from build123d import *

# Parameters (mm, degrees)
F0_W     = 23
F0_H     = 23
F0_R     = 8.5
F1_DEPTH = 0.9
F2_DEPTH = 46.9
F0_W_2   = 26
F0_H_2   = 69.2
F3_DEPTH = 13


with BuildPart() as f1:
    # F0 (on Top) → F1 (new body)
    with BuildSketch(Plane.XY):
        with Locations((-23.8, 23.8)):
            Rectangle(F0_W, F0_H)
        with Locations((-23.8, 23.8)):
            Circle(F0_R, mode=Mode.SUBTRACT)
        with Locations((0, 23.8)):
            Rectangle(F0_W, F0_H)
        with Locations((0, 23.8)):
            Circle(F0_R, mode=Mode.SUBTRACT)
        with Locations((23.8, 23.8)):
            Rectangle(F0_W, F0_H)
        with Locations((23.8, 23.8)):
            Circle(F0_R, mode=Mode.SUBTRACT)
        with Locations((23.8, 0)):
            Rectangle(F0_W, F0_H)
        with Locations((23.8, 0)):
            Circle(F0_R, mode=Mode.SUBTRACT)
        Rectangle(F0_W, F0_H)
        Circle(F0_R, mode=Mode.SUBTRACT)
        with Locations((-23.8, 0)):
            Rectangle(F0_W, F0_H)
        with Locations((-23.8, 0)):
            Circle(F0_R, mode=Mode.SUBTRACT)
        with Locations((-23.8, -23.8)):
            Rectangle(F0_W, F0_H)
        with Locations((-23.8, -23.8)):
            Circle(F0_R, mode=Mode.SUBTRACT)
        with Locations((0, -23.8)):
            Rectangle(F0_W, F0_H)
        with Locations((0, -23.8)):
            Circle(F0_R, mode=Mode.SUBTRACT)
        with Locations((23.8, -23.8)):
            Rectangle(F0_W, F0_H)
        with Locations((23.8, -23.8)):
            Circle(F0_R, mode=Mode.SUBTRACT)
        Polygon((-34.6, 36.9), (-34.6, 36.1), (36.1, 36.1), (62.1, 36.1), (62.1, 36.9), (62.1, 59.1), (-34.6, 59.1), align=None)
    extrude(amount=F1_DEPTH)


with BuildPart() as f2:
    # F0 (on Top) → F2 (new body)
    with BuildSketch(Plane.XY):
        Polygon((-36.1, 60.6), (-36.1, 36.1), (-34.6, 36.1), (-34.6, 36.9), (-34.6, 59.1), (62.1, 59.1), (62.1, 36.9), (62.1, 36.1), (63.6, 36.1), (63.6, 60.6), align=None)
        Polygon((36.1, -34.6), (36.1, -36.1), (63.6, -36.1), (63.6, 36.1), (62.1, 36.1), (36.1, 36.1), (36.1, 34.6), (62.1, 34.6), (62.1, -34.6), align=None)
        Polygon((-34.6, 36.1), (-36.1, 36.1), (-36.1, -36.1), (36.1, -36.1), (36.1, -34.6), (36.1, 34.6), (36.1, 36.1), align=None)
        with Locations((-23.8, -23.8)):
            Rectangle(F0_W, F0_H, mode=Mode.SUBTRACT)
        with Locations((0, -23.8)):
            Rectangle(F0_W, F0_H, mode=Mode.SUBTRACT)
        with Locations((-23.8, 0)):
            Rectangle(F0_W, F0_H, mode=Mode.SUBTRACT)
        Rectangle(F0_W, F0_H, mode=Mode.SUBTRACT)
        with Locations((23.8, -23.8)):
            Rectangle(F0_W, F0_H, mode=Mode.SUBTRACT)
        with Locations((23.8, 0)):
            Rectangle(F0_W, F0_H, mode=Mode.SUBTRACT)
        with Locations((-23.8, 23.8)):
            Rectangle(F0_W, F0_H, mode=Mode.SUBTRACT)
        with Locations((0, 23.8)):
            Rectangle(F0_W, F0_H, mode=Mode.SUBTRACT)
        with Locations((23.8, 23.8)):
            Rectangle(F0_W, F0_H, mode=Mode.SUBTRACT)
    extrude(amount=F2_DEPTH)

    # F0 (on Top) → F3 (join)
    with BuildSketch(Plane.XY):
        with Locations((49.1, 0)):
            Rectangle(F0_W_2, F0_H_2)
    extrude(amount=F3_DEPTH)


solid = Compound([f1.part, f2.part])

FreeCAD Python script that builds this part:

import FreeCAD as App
import Part
import Sketcher
Q = App.Units.Quantity


def add_polygon(sketch, points):
    """Adds a closed chain of lines whose ends are joined by coincident constraints."""
    first, n = sketch.GeometryCount, len(points)
    for a, b in zip(points, points[1:] + points[:1]):
        sketch.addGeometry(Part.LineSegment(App.Vector(*a, 0), App.Vector(*b, 0)), False)
    for i in range(n):
        sketch.addConstraint(Sketcher.Constraint("Coincident", first + i, 2, first + (i + 1) % n, 1))

doc = App.newDocument("Part")
params = doc.addObject("Spreadsheet::Sheet", "Params")
for row, (alias, value) in enumerate([
    ("sketch1_diameter", "17 mm"),
    ("sketch1_width", "23 mm"),
    ("sketch1_width2", "96.7 mm"),
    ("pad1_length", "0.9 mm"),
    ("sketch2_width", "23 mm"),
    ("sketch2_width2", "26 mm"),
    ("sketch2_width3", "99.7 mm"),
    ("sketch2_width4", "96.7 mm"),
    ("sketch2_height", "69.2 mm"),
    ("pad2_length", "46.9 mm"),
    ("sketch3_width", "26 mm"),
    ("sketch3_height", "69.2 mm"),
    ("pad3_length", "13 mm"),
], start=1):
    params.set(f"A{row}", alias)
    params.set(f"B{row}", "=" + value)
    params.setAlias(f"B{row}", alias)

body = doc.addObject("PartDesign::Body", "Body")
body.AllowCompound = True

sketch1 = doc.addObject("Sketcher::SketchObject", "Sketch")
body.addObject(sketch1)
sketch1.AttachmentSupport = (doc.XY_Plane, [""])
sketch1.MapMode = "FlatFace"
add_polygon(sketch1, [(-35.3, 35.3), (-35.3, 12.3), (-12.3, 12.3), (-12.3, 35.3)])
sketch1.addGeometry(Part.Circle(App.Vector(-23.8, 23.8, 0), App.Vector(0, 0, 1), 8.5), False)
add_polygon(sketch1, [(-11.5, 35.3), (-11.5, 12.3), (11.5, 12.3), (11.5, 35.3)])
sketch1.addGeometry(Part.Circle(App.Vector(0, 23.8, 0), App.Vector(0, 0, 1), 8.5), False)
add_polygon(sketch1, [(12.3, 35.3), (12.3, 12.3), (35.3, 12.3), (35.3, 35.3)])
sketch1.addGeometry(Part.Circle(App.Vector(23.8, 23.8, 0), App.Vector(0, 0, 1), 8.5), False)
add_polygon(sketch1, [(12.3, 11.5), (12.3, -11.5), (35.3, -11.5), (35.3, 11.5)])
sketch1.addGeometry(Part.Circle(App.Vector(23.8, 0, 0), App.Vector(0, 0, 1), 8.5), False)
add_polygon(sketch1, [(-11.5, 11.5), (-11.5, -11.5), (11.5, -11.5), (11.5, 11.5)])
sketch1.addGeometry(Part.Circle(App.Vector(0, 0, 0), App.Vector(0, 0, 1), 8.5), False)
add_polygon(sketch1, [(-35.3, 11.5), (-35.3, -11.5), (-12.3, -11.5), (-12.3, 11.5)])
sketch1.addGeometry(Part.Circle(App.Vector(-23.8, 0, 0), App.Vector(0, 0, 1), 8.5), False)
add_polygon(sketch1, [(-35.3, -12.3), (-35.3, -35.3), (-12.3, -35.3), (-12.3, -12.3)])
sketch1.addGeometry(Part.Circle(App.Vector(-23.8, -23.8, 0), App.Vector(0, 0, 1), 8.5), False)
add_polygon(sketch1, [(-11.5, -12.3), (-11.5, -35.3), (11.5, -35.3), (11.5, -12.3)])
sketch1.addGeometry(Part.Circle(App.Vector(0, -23.8, 0), App.Vector(0, 0, 1), 8.5), False)
add_polygon(sketch1, [(12.3, -12.3), (12.3, -35.3), (35.3, -35.3), (35.3, -12.3)])
sketch1.addGeometry(Part.Circle(App.Vector(23.8, -23.8, 0), App.Vector(0, 0, 1), 8.5), False)
add_polygon(sketch1, [(-34.6, 36.1), (62.1, 36.1), (62.1, 59.1), (-34.6, 59.1)])
sketch1.addConstraint([
    Sketcher.Constraint("Vertical", 0),
    Sketcher.Constraint("Horizontal", 1),
    Sketcher.Constraint("Vertical", 2),
    Sketcher.Constraint("Horizontal", 3),
    Sketcher.Constraint("Vertical", 5),
    Sketcher.Constraint("Horizontal", 6),
    Sketcher.Constraint("Vertical", 7),
    Sketcher.Constraint("Horizontal", 8),
    Sketcher.Constraint("Vertical", 10),
    Sketcher.Constraint("Horizontal", 11),
    Sketcher.Constraint("Vertical", 12),
    Sketcher.Constraint("Horizontal", 13),
    Sketcher.Constraint("Vertical", 15),
    Sketcher.Constraint("Horizontal", 16),
    Sketcher.Constraint("Vertical", 17),
    Sketcher.Constraint("Horizontal", 18),
    Sketcher.Constraint("Vertical", 20),
    Sketcher.Constraint("Horizontal", 21),
    Sketcher.Constraint("Vertical", 22),
    Sketcher.Constraint("Horizontal", 23),
    Sketcher.Constraint("Vertical", 25),
    Sketcher.Constraint("Horizontal", 26),
    Sketcher.Constraint("Vertical", 27),
    Sketcher.Constraint("Horizontal", 28),
    Sketcher.Constraint("Vertical", 30),
    Sketcher.Constraint("Horizontal", 31),
    Sketcher.Constraint("Vertical", 32),
    Sketcher.Constraint("Horizontal", 33),
    Sketcher.Constraint("Vertical", 35),
    Sketcher.Constraint("Horizontal", 36),
    Sketcher.Constraint("Vertical", 37),
    Sketcher.Constraint("Horizontal", 38),
    Sketcher.Constraint("Vertical", 40),
    Sketcher.Constraint("Horizontal", 41),
    Sketcher.Constraint("Vertical", 42),
    Sketcher.Constraint("Horizontal", 43),
    Sketcher.Constraint("Horizontal", 45),
    Sketcher.Constraint("Vertical", 46),
    Sketcher.Constraint("Horizontal", 47),
    Sketcher.Constraint("Vertical", 48),
    Sketcher.Constraint("Coincident", 24, 3, -1, 1),
    Sketcher.Constraint("Equal", 4, 9),
    Sketcher.Constraint("Equal", 9, 14),
    Sketcher.Constraint("Equal", 14, 19),
    Sketcher.Constraint("Equal", 19, 24),
    Sketcher.Constraint("Equal", 24, 29),
    Sketcher.Constraint("Equal", 29, 34),
    Sketcher.Constraint("Equal", 34, 39),
    Sketcher.Constraint("Equal", 39, 44),
    Sketcher.Constraint("Symmetric", 19, 3, 29, 3, -1, 1),
    Sketcher.Constraint("Symmetric", 14, 3, 34, 3, -1, 1),
    Sketcher.Constraint("Symmetric", 9, 3, 39, 3, -1, 1),
    Sketcher.Constraint("Symmetric", 4, 3, 44, 3, -1, 1),
    Sketcher.Constraint("Symmetric", 20, 2, 22, 2, -1, 1),
    Sketcher.Constraint("Symmetric", 17, 2, 25, 2, -1, 1),
    Sketcher.Constraint("Symmetric", 15, 2, 27, 2, -1, 1),
    Sketcher.Constraint("Symmetric", 12, 2, 30, 2, -1, 1),
    Sketcher.Constraint("Symmetric", 10, 2, 32, 2, -1, 1),
    Sketcher.Constraint("Symmetric", 7, 2, 35, 2, -1, 1),
    Sketcher.Constraint("Symmetric", 5, 2, 37, 2, -1, 1),
    Sketcher.Constraint("Symmetric", 2, 2, 40, 2, -1, 1),
    Sketcher.Constraint("Symmetric", 0, 2, 42, 2, -1, 1),
    Sketcher.Constraint("Symmetric", 4, 3, 14, 3, -2),
    Sketcher.Constraint("Symmetric", 1, 2, 10, 2, -2),
    Sketcher.Constraint("Symmetric", 3, 2, 12, 2, -2),
    Sketcher.Constraint("PointOnObject", 9, 3, -2),
    Sketcher.Constraint("PointOnObject", 19, 3, -1),
    Sketcher.Constraint("Horizontal", 4, 3, 9, 3),
    Sketcher.Constraint("Horizontal", 1, 2, 5, 2),
    Sketcher.Constraint("Horizontal", 3, 2, 7, 2),
    Sketcher.Constraint("Horizontal", 16, 2, 20, 2),
    Sketcher.Constraint("Horizontal", 18, 2, 22, 2),
    Sketcher.Constraint("Vertical", 14, 3, 19, 3),
    Sketcher.Constraint("Vertical", 13, 2, 15, 2),
    Sketcher.Constraint("Vertical", 12, 2, 16, 2),
    Sketcher.Constraint("Vertical", 8, 2, 20, 2),
    Sketcher.Constraint("Vertical", 7, 2, 21, 2),
    Sketcher.Constraint("Equal", 3, 6),
    Sketcher.Constraint("Equal", 43, 0),
    Sketcher.Constraint("Equal", 12, 15),
    Sketcher.Constraint("Equal", 42, 46),
    Sketcher.Constraint("Diameter", 4, Q("17 mm")),
    Sketcher.Constraint("DistanceX", 1, 1, 1, 2, Q("23 mm")),
    Sketcher.Constraint("DistanceX", 45, 1, 45, 2, Q("96.7 mm")),
    Sketcher.Constraint("DistanceX", 4, 3, -1, 1, Q("23.8 mm")),
    Sketcher.Constraint("DistanceY", -1, 1, 4, 3, Q("23.8 mm")),
    Sketcher.Constraint("DistanceX", 0, 2, -1, 1, Q("35.3 mm")),
    Sketcher.Constraint("DistanceY", -1, 1, 0, 2, Q("12.3 mm")),
    Sketcher.Constraint("DistanceX", -1, 1, 45, 2, Q("62.1 mm")),
    Sketcher.Constraint("DistanceY", -1, 1, 45, 2, Q("36.1 mm")),
])
sketch1.setExpression("Constraints[121]", "Params.sketch1_diameter")
sketch1.setExpression("Constraints[122]", "Params.sketch1_width")
sketch1.setExpression("Constraints[123]", "Params.sketch1_width2")
pad1 = doc.addObject("PartDesign::Pad", "Pad")
body.addObject(pad1)
pad1.Profile = sketch1
pad1.setExpression("Length", "Params.pad1_length")
body2 = doc.addObject("PartDesign::Body", "Body001")

sketch2 = doc.addObject("Sketcher::SketchObject", "Sketch001")
body2.addObject(sketch2)
sketch2.AttachmentSupport = (doc.getObject("XY_Plane001"), [""])
sketch2.MapMode = "FlatFace"
add_polygon(sketch2, [(-36.1, 60.6), (-36.1, -36.1), (63.6, -36.1), (63.6, 60.6)])
add_polygon(sketch2, [(-12.3, -35.3), (-35.3, -35.3), (-35.3, -12.3), (-12.3, -12.3)])
add_polygon(sketch2, [(11.5, -35.3), (-11.5, -35.3), (-11.5, -12.3), (11.5, -12.3)])
add_polygon(sketch2, [(-12.3, -11.5), (-35.3, -11.5), (-35.3, 11.5), (-12.3, 11.5)])
add_polygon(sketch2, [(11.5, -11.5), (-11.5, -11.5), (-11.5, 11.5), (11.5, 11.5)])
add_polygon(sketch2, [(35.3, -35.3), (12.3, -35.3), (12.3, -12.3), (35.3, -12.3)])
add_polygon(sketch2, [(35.3, -11.5), (12.3, -11.5), (12.3, 11.5), (35.3, 11.5)])
add_polygon(sketch2, [(36.1, 34.6), (62.1, 34.6), (62.1, -34.6), (36.1, -34.6)])
add_polygon(sketch2, [(-12.3, 12.3), (-35.3, 12.3), (-35.3, 35.3), (-12.3, 35.3)])
add_polygon(sketch2, [(11.5, 12.3), (-11.5, 12.3), (-11.5, 35.3), (11.5, 35.3)])
add_polygon(sketch2, [(35.3, 12.3), (12.3, 12.3), (12.3, 35.3), (35.3, 35.3)])
add_polygon(sketch2, [(-34.6, 36.1), (-34.6, 59.1), (62.1, 59.1), (62.1, 36.1)])
sketch2.addConstraint([
    Sketcher.Constraint("Vertical", 0),
    Sketcher.Constraint("Horizontal", 1),
    Sketcher.Constraint("Vertical", 2),
    Sketcher.Constraint("Horizontal", 3),
    Sketcher.Constraint("Horizontal", 4),
    Sketcher.Constraint("Vertical", 5),
    Sketcher.Constraint("Horizontal", 6),
    Sketcher.Constraint("Vertical", 7),
    Sketcher.Constraint("Horizontal", 8),
    Sketcher.Constraint("Vertical", 9),
    Sketcher.Constraint("Horizontal", 10),
    Sketcher.Constraint("Vertical", 11),
    Sketcher.Constraint("Horizontal", 12),
    Sketcher.Constraint("Vertical", 13),
    Sketcher.Constraint("Horizontal", 14),
    Sketcher.Constraint("Vertical", 15),
    Sketcher.Constraint("Horizontal", 16),
    Sketcher.Constraint("Vertical", 17),
    Sketcher.Constraint("Horizontal", 18),
    Sketcher.Constraint("Vertical", 19),
    Sketcher.Constraint("Horizontal", 20),
    Sketcher.Constraint("Vertical", 21),
    Sketcher.Constraint("Horizontal", 22),
    Sketcher.Constraint("Vertical", 23),
    Sketcher.Constraint("Horizontal", 24),
    Sketcher.Constraint("Vertical", 25),
    Sketcher.Constraint("Horizontal", 26),
    Sketcher.Constraint("Vertical", 27),
    Sketcher.Constraint("Horizontal", 28),
    Sketcher.Constraint("Vertical", 29),
    Sketcher.Constraint("Horizontal", 30),
    Sketcher.Constraint("Vertical", 31),
    Sketcher.Constraint("Horizontal", 32),
    Sketcher.Constraint("Vertical", 33),
    Sketcher.Constraint("Horizontal", 34),
    Sketcher.Constraint("Vertical", 35),
    Sketcher.Constraint("Horizontal", 36),
    Sketcher.Constraint("Vertical", 37),
    Sketcher.Constraint("Horizontal", 38),
    Sketcher.Constraint("Vertical", 39),
    Sketcher.Constraint("Horizontal", 40),
    Sketcher.Constraint("Vertical", 41),
    Sketcher.Constraint("Horizontal", 42),
    Sketcher.Constraint("Vertical", 43),
    Sketcher.Constraint("Vertical", 44),
    Sketcher.Constraint("Horizontal", 45),
    Sketcher.Constraint("Vertical", 46),
    Sketcher.Constraint("Horizontal", 47),
    Sketcher.Constraint("Symmetric", 16, 2, 18, 2, -1, 1),
    Sketcher.Constraint("Symmetric", 14, 2, 24, 2, -1, 1),
    Sketcher.Constraint("Symmetric", 12, 2, 26, 2, -1, 1),
    Sketcher.Constraint("Symmetric", 22, 2, 32, 2, -1, 1),
    Sketcher.Constraint("Symmetric", 20, 2, 34, 2, -1, 1),
    Sketcher.Constraint("Symmetric", 10, 2, 36, 2, -1, 1),
    Sketcher.Constraint("Symmetric", 8, 2, 38, 2, -1, 1),
    Sketcher.Constraint("Symmetric", 6, 2, 40, 2, -1, 1),
    Sketcher.Constraint("Symmetric", 4, 2, 42, 2, -1, 1),
    Sketcher.Constraint("Symmetric", 7, 2, 20, 2, -2),
    Sketcher.Constraint("Symmetric", 5, 2, 22, 2, -2),
    Sketcher.Constraint("Horizontal", 7, 2, 8, 2),
    Sketcher.Constraint("Horizontal", 6, 2, 9, 2),
    Sketcher.Constraint("Horizontal", 15, 2, 16, 2),
    Sketcher.Constraint("Horizontal", 14, 2, 17, 2),
    Sketcher.Constraint("Vertical", 5, 2, 12, 2),
    Sketcher.Constraint("Vertical", 7, 2, 14, 2),
    Sketcher.Constraint("Vertical", 9, 2, 16, 2),
    Sketcher.Constraint("Vertical", 11, 2, 18, 2),
    Sketcher.Constraint("Vertical", 29, 2, 45, 2),
    Sketcher.Constraint("Equal", 6, 8),
    Sketcher.Constraint("Equal", 47, 0),
    Sketcher.Constraint("Equal", 42, 5),
    Sketcher.Constraint("Equal", 11, 13),
    Sketcher.Constraint("Equal", 43, 44),
    Sketcher.Constraint("DistanceX", 4, 2, 4, 1, Q("23 mm")),
    Sketcher.Constraint("DistanceX", 28, 1, 28, 2, Q("26 mm")),
    Sketcher.Constraint("DistanceX", 1, 1, 1, 2, Q("99.7 mm")),
    Sketcher.Constraint("DistanceX", 45, 1, 45, 2, Q("96.7 mm")),
    Sketcher.Constraint("DistanceY", 29, 2, 29, 1, Q("69.2 mm")),
    Sketcher.Constraint("DistanceY", 28, 2, 2, 2, Q("26 mm")),
    Sketcher.Constraint("DistanceX", 0, 2, -1, 1, Q("36.1 mm")),
    Sketcher.Constraint("DistanceY", 0, 2, -1, 1, Q("36.1 mm")),
    Sketcher.Constraint("DistanceX", 4, 2, -1, 1, Q("35.3 mm")),
    Sketcher.Constraint("DistanceY", 4, 2, -1, 1, Q("35.3 mm")),
    Sketcher.Constraint("DistanceX", -1, 1, 28, 2, Q("62.1 mm")),
    Sketcher.Constraint("DistanceY", -1, 1, 44, 2, Q("59.1 mm")),
])
sketch2.setExpression("Constraints[121]", "Params.sketch2_width")
sketch2.setExpression("Constraints[122]", "Params.sketch2_width2")
sketch2.setExpression("Constraints[123]", "Params.sketch2_width3")
sketch2.setExpression("Constraints[124]", "Params.sketch2_width4")
sketch2.setExpression("Constraints[125]", "Params.sketch2_height")
pad2 = doc.addObject("PartDesign::Pad", "Pad001")
body2.addObject(pad2)
pad2.Profile = sketch2
pad2.setExpression("Length", "Params.pad2_length")

sketch3 = doc.addObject("Sketcher::SketchObject", "Sketch002")
body2.addObject(sketch3)
sketch3.AttachmentSupport = (doc.getObject("XY_Plane001"), [""])
sketch3.MapMode = "FlatFace"
add_polygon(sketch3, [(36.1, 34.6), (36.1, -34.6), (62.1, -34.6), (62.1, 34.6)])
sketch3.addConstraint([
    Sketcher.Constraint("Vertical", 0),
    Sketcher.Constraint("Horizontal", 1),
    Sketcher.Constraint("Vertical", 2),
    Sketcher.Constraint("Horizontal", 3),
    Sketcher.Constraint("DistanceX", 1, 1, 1, 2, Q("26 mm")),
    Sketcher.Constraint("DistanceY", 0, 2, 0, 1, Q("69.2 mm")),
    Sketcher.Constraint("DistanceX", -1, 1, 0, 2, Q("36.1 mm")),
    Sketcher.Constraint("DistanceY", 0, 2, -1, 1, Q("34.6 mm")),
])
sketch3.setExpression("Constraints[8]", "Params.sketch3_width")
sketch3.setExpression("Constraints[9]", "Params.sketch3_height")
pad3 = doc.addObject("PartDesign::Pad", "Pad002")
body2.addObject(pad3)
pad3.Profile = sketch3
pad3.setExpression("Length", "Params.pad3_length")

doc.recompute()
